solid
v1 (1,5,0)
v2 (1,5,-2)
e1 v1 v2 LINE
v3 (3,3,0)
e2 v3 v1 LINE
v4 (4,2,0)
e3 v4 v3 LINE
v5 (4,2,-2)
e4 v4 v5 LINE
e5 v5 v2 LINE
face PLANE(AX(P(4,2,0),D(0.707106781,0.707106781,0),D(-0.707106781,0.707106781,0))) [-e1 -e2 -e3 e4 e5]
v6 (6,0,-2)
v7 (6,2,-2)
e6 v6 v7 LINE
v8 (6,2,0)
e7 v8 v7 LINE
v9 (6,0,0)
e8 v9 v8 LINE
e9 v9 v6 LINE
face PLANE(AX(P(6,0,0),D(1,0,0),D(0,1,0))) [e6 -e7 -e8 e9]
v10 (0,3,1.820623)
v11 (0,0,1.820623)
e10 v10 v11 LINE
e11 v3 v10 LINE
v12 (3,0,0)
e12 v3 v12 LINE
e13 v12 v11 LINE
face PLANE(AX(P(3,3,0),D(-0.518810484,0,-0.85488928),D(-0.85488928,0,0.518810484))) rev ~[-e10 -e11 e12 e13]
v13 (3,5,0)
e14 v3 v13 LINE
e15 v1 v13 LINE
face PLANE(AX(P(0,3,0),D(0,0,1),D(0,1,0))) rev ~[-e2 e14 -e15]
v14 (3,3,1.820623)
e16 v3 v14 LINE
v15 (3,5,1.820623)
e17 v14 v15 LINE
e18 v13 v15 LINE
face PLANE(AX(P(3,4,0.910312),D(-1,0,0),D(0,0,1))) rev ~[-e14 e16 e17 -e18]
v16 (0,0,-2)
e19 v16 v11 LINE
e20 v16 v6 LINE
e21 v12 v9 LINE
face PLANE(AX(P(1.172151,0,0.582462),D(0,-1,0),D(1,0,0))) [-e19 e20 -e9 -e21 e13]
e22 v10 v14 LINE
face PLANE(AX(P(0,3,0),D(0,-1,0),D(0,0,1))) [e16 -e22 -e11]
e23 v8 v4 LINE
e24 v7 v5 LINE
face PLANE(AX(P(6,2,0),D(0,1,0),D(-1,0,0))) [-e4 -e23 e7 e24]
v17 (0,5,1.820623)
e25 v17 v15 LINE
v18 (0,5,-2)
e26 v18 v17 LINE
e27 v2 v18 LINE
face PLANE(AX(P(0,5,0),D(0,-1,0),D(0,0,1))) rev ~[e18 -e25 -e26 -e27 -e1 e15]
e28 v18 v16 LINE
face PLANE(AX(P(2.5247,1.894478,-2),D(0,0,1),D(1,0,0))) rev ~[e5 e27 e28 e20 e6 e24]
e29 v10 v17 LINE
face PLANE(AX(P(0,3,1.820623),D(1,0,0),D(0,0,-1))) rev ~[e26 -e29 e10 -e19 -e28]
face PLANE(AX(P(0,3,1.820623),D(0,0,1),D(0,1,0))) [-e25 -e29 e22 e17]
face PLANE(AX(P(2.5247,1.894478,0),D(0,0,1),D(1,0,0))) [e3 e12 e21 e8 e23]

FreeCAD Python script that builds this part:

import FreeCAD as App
import Part
import Sketcher

V = App.Vector
Q = App.Units.Quantity


def add_polygon(sketch, points):
    """Adds a closed chain of lines whose ends are joined by coincident constraints."""
    first, n = sketch.GeometryCount, len(points)
    for a, b in zip(points, points[1:] + points[:1]):
        sketch.addGeometry(Part.LineSegment(App.Vector(*a, 0), App.Vector(*b, 0)), False)
    for i in range(n):
        sketch.addConstraint(Sketcher.Constraint("Coincident", first + i, 2, first + (i + 1) % n, 1))

doc = App.newDocument("Part")
body = doc.addObject("PartDesign::Body", "Body")

# Sketch on XY plane
sketch1 = body.newObject("Sketcher::SketchObject", "Sketch")
sketch1.AttachmentSupport = (doc.getObject("XY_Plane"), [""])
sketch1.MapMode = "FlatFace"
add_polygon(sketch1, [(0, 0), (6, 0), (6, 2), (4, 2), (1, 5), (0, 5)])  # lines 0-5
sketch1.addConstraint([
    Sketcher.Constraint("Horizontal", 0),
    Sketcher.Constraint("Vertical", 1),
    Sketcher.Constraint("Horizontal", 2),
    Sketcher.Constraint("Horizontal", 4),
    Sketcher.Constraint("Vertical", 5),
    Sketcher.Constraint("Coincident", 5, 2, -1, 1),
    Sketcher.Constraint("Equal", 2, 1),
    Sketcher.Constraint("DistanceX", 0, 1, 0, 2, Q("6 mm")),
    Sketcher.Constraint("DistanceX", 2, 2, 2, 1, Q("2 mm")),
    Sketcher.Constraint("DistanceX", 4, 2, 4, 1, Q("1 mm")),
    Sketcher.Constraint("DistanceY", 5, 2, 5, 1, Q("5 mm")),
])
pad1 = body.newObject("PartDesign::Pad", "Pad")
pad1.Profile = sketch1
pad1.Length = 2
pad1.Reversed = True
body2 = doc.addObject("PartDesign::Body", "Body001")

# Sketch on YZ plane
sketch2 = body2.newObject("Sketcher::SketchObject", "Sketch001")
sketch2.AttachmentSupport = (doc.getObject("YZ_Plane001"), [""])
sketch2.MapMode = "FlatFace"
add_polygon(sketch2, [(5, 0), (3, 0), (3, 1.8), (5, 1.8)])  # lines 0-3
sketch2.addConstraint([
    Sketcher.Constraint("Horizontal", 0),
    Sketcher.Constraint("Vertical", 1),
    Sketcher.Constraint("Horizontal", 2),
    Sketcher.Constraint("Vertical", 3),
    Sketcher.Constraint("PointOnObject", 0, 2, -1),
    Sketcher.Constraint("DistanceX", 0, 2, 0, 1, Q("2 mm")),
    Sketcher.Constraint("DistanceX", -1, 1, 0, 2, Q("3 mm")),
    Sketcher.Constraint("DistanceY", 1, 1, 1, 2, Q("1.820623 mm")),
])
pad2 = body2.newObject("PartDesign::Pad", "Pad001")
pad2.Profile = sketch2
pad2.Length = 3
doc.recompute()

boolean = body.newObject("PartDesign::Boolean", "Boolean")
boolean.Type = "Fuse"
boolean.addObjects([body2])

# Sketch on XZ plane
sketch3 = body.newObject("Sketcher::SketchObject", "Sketch002")
sketch3.AttachmentSupport = (doc.getObject("XZ_Plane"), [""])
sketch3.MapMode = "FlatFace"
sketch3.AttachmentOffset = App.Placement(V(0, 0, -3), App.Rotation())
add_polygon(sketch3, [(0, 0), (3, 0), (0, 1.8)])  # lines 0-2
sketch3.addConstraint([
    Sketcher.Constraint("Horizontal", 0),
    Sketcher.Constraint("Vertical", 2),
    Sketcher.Constraint("Coincident", 2, 2, -1, 1),
    Sketcher.Constraint("DistanceX", 0, 1, 0, 2, Q("3 mm")),
    Sketcher.Constraint("DistanceY", 2, 2, 2, 1, Q("1.820623 mm")),
])
pad3 = body.newObject("PartDesign::Pad", "Pad002")
pad3.Profile = sketch3
pad3.Length = 3

doc.recompute()
